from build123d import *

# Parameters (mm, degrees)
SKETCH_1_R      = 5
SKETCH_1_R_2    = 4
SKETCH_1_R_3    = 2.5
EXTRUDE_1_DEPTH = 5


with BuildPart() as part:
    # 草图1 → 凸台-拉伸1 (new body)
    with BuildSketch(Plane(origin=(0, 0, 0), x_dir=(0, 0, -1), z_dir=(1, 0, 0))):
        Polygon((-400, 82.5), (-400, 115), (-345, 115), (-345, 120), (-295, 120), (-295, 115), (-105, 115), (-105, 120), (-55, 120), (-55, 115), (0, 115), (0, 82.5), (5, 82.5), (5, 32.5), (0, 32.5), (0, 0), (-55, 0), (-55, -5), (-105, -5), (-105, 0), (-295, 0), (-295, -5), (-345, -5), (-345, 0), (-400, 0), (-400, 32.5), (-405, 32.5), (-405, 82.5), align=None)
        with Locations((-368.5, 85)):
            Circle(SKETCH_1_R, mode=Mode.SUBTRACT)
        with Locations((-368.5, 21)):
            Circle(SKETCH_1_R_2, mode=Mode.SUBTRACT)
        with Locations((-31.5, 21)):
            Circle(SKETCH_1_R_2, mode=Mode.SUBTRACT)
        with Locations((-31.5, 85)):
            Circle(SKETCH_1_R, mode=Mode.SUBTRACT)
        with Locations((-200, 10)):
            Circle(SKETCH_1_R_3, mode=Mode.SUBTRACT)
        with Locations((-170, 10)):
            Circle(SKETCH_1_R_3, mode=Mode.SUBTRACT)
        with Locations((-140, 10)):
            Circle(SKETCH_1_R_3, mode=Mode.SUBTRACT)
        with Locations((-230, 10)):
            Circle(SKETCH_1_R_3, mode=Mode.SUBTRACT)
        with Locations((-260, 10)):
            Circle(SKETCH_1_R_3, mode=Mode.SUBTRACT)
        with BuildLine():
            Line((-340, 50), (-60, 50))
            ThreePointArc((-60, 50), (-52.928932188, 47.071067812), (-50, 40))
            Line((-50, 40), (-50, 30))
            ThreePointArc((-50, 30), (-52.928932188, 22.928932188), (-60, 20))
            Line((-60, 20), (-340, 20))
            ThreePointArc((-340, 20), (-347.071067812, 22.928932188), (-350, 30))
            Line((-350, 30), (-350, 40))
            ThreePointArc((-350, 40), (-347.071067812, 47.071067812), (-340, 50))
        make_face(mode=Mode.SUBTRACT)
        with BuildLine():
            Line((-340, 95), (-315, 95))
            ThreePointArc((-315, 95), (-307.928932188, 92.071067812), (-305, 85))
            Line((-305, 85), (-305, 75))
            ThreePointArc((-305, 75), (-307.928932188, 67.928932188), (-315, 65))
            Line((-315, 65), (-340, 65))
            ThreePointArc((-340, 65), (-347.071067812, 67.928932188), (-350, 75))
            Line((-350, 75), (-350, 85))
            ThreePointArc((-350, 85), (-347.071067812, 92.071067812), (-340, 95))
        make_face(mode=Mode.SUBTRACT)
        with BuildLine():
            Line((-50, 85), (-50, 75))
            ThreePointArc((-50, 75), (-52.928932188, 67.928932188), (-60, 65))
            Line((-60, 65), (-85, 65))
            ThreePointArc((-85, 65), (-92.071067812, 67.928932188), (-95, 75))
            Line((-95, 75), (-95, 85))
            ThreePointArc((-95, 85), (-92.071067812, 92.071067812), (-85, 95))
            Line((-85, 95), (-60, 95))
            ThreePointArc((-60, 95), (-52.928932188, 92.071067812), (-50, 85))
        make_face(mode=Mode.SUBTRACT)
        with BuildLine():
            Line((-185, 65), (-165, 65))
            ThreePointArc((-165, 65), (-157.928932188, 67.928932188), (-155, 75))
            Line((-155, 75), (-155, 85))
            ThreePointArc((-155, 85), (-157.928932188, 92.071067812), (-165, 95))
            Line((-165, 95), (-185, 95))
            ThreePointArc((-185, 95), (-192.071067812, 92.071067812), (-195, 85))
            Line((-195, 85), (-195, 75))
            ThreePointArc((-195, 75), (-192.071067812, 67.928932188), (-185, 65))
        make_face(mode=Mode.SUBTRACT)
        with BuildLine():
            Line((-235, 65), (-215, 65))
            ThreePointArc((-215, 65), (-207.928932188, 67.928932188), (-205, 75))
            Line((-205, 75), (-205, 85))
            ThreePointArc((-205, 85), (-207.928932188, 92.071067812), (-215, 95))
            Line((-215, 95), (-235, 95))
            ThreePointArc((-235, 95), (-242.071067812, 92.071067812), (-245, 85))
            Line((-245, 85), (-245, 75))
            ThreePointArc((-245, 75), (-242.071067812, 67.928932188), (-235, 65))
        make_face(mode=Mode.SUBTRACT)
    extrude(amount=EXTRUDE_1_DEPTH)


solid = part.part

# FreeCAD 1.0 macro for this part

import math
import FreeCAD as App
import Part
import Sketcher
from FreeCAD import Vector

doc = App.newDocument("Part")
body = doc.addObject("PartDesign::Body", "Body")

# Sketch on YZ plane
sketch1 = body.newObject("Sketcher::SketchObject", "Sketch")
sketch1.AttachmentSupport = (doc.getObject("YZ_Plane"), [""])
sketch1.MapMode = "FlatFace"
sketch1.addGeometry([
    Part.LineSegment(Vector(115, 400, 0), Vector(82.5, 400, 0)),  # 0
    Part.LineSegment(Vector(82.5, 400, 0), Vector(82.5, 405, 0)),  # 1
    Part.LineSegment(Vector(82.5, 405, 0), Vector(32.5, 405, 0)),  # 2
    Part.LineSegment(Vector(32.5, 405, 0), Vector(32.5, 400, 0)),  # 3
    Part.LineSegment(Vector(32.5, 400, 0), Vector(0, 400, 0)),  # 4
    Part.LineSegment(Vector(0, 400, 0), Vector(0, 345, 0)),  # 5
    Part.LineSegment(Vector(0, 345, 0), Vector(-5, 345, 0)),  # 6
    Part.LineSegment(Vector(-5, 345, 0), Vector(-5, 295, 0)),  # 7
    Part.LineSegment(Vector(-5, 295, 0), Vector(0, 295, 0)),  # 8
    Part.LineSegment(Vector(0, 295, 0), Vector(0, 105, 0)),  # 9
    Part.LineSegment(Vector(0, 105, 0), Vector(-5, 105, 0)),  # 10
    Part.LineSegment(Vector(-5, 105, 0), Vector(-5, 55, 0)),  # 11
    Part.LineSegment(Vector(-5, 55, 0), Vector(0, 55, 0)),  # 12
    Part.LineSegment(Vector(0, 55, 0), Vector(0, 0, 0)),  # 13
    Part.LineSegment(Vector(0, 0, 0), Vector(32.5, 0, 0)),  # 14
    Part.LineSegment(Vector(32.5, 0, 0), Vector(32.5, -5, 0)),  # 15
    Part.LineSegment(Vector(32.5, -5, 0), Vector(82.5, -5, 0)),  # 16
    Part.LineSegment(Vector(82.5, -5, 0), Vector(82.5, 0, 0)),  # 17
    Part.LineSegment(Vector(82.5, 0, 0), Vector(115, 0, 0)),  # 18
    Part.LineSegment(Vector(115, 0, 0), Vector(115, 55, 0)),  # 19
    Part.LineSegment(Vector(115, 55, 0), Vector(120, 55, 0)),  # 20
    Part.LineSegment(Vector(120, 55, 0), Vector(120, 105, 0)),  # 21
    Part.LineSegment(Vector(120, 105, 0), Vector(115, 105, 0)),  # 22
    Part.LineSegment(Vector(115, 105, 0), Vector(115, 295, 0)),  # 23
    Part.LineSegment(Vector(115, 295, 0), Vector(120, 295, 0)),  # 24
    Part.LineSegment(Vector(120, 295, 0), Vector(120, 345, 0)),  # 25
    Part.LineSegment(Vector(120, 345, 0), Vector(115, 345, 0)),  # 26
    Part.LineSegment(Vector(115, 345, 0), Vector(115, 400, 0)),  # 27
    Part.Circle(Vector(21, 31.5, 0), Vector(0, 0, 1), 4),  # 28
    Part.Circle(Vector(10, 140, 0), Vector(0, 0, 1), 2.5),  # 29
    Part.Circle(Vector(10, 170, 0), Vector(0, 0, 1), 2.5),  # 30
    Part.Circle(Vector(10, 200, 0), Vector(0, 0, 1), 2.5),  # 31
    Part.LineSegment(Vector(50, 340, 0), Vector(50, 60, 0)),  # 32
    Part.ArcOfCircle(Part.Circle(Vector(40, 60, 0), Vector(0, 0, 1), 10), math.radians(-90), math.radians(0)),  # 33
    Part.LineSegment(Vector(40, 50, 0), Vector(30, 50, 0)),  # 34
    Part.ArcOfCircle(Part.Circle(Vector(30, 60, 0), Vector(0, 0, 1), 10), math.radians(180), math.radians(270)),  # 35
    Part.LineSegment(Vector(20, 60, 0), Vector(20, 340, 0)),  # 36
    Part.ArcOfCircle(Part.Circle(Vector(30, 340, 0), Vector(0, 0, 1), 10), math.radians(90), math.radians(180)),  # 37
    Part.LineSegment(Vector(30, 350, 0), Vector(40, 350, 0)),  # 38
    Part.ArcOfCircle(Part.Circle(Vector(40, 340, 0), Vector(0, 0, 1), 10), math.radians(0), math.radians(90)),  # 39
    Part.Circle(Vector(10, 230, 0), Vector(0, 0, 1), 2.5),  # 40
    Part.Circle(Vector(10, 260, 0), Vector(0, 0, 1), 2.5),  # 41
    Part.Circle(Vector(21, 368.5, 0), Vector(0, 0, 1), 4),  # 42
    Part.LineSegment(Vector(85, 50, 0), Vector(75, 50, 0)),  # 43
    Part.ArcOfCircle(Part.Circle(Vector(75, 60, 0), Vector(0, 0, 1), 10), math.radians(180), math.radians(270)),  # 44
    Part.LineSegment(Vector(65, 60, 0), Vector(65, 85, 0)),  # 45
    Part.ArcOfCircle(Part.Circle(Vector(75, 85, 0), Vector(0, 0, 1), 10), math.radians(90), math.radians(180)),  # 46
    Part.LineSegment(Vector(75, 95, 0), Vector(85, 95, 0)),  # 47
    Part.ArcOfCircle(Part.Circle(Vector(85, 85, 0), Vector(0, 0, 1), 10), math.radians(0), math.radians(90)),  # 48
    Part.LineSegment(Vector(95, 85, 0), Vector(95, 60, 0)),  # 49
    Part.ArcOfCircle(Part.Circle(Vector(85, 60, 0), Vector(0, 0, 1), 10), math.radians(-90), math.radians(0)),  # 50
    Part.Circle(Vector(85, 31.5, 0), Vector(0, 0, 1), 5),  # 51
    Part.ArcOfCircle(Part.Circle(Vector(75, 185, 0), Vector(0, 0, 1), 10), math.radians(90), math.radians(180)),  # 52
    Part.LineSegment(Vector(75, 195, 0), Vector(85, 195, 0)),  # 53
    Part.ArcOfCircle(Part.Circle(Vector(85, 185, 0), Vector(0, 0, 1), 10), math.radians(0), math.radians(90)),  # 54
    Part.LineSegment(Vector(95, 185, 0), Vector(95, 165, 0)),  # 55
    Part.ArcOfCircle(Part.Circle(Vector(85, 165, 0), Vector(0, 0, 1), 10), math.radians(-90), math.radians(0)),  # 56
    Part.LineSegment(Vector(85, 155, 0), Vector(75, 155, 0)),  # 57
    Part.ArcOfCircle(Part.Circle(Vector(75, 165, 0), Vector(0, 0, 1), 10), math.radians(180), math.radians(270)),  # 58
    Part.LineSegment(Vector(65, 165, 0), Vector(65, 185, 0)),  # 59
    Part.ArcOfCircle(Part.Circle(Vector(75, 235, 0), Vector(0, 0, 1), 10), math.radians(90), math.radians(180)),  # 60
    Part.LineSegment(Vector(75, 245, 0), Vector(85, 245, 0)),  # 61
    Part.ArcOfCircle(Part.Circle(Vector(85, 235, 0), Vector(0, 0, 1), 10), math.radians(0), math.radians(90)),  # 62
    Part.LineSegment(Vector(95, 235, 0), Vector(95, 215, 0)),  # 63
    Part.ArcOfCircle(Part.Circle(Vector(85, 215, 0), Vector(0, 0, 1), 10), math.radians(-90), math.radians(0)),  # 64
    Part.LineSegment(Vector(85, 205, 0), Vector(75, 205, 0)),  # 65
    Part.ArcOfCircle(Part.Circle(Vector(75, 215, 0), Vector(0, 0, 1), 10), math.radians(180), math.radians(270)),  # 66
    Part.LineSegment(Vector(65, 215, 0), Vector(65, 235, 0)),  # 67
    Part.LineSegment(Vector(95, 340, 0), Vector(95, 315, 0)),  # 68
    Part.ArcOfCircle(Part.Circle(Vector(85, 315, 0), Vector(0, 0, 1), 10), math.radians(-90), math.radians(0)),  # 69
    Part.LineSegment(Vector(85, 305, 0), Vector(75, 305, 0)),  # 70
    Part.ArcOfCircle(Part.Circle(Vector(75, 315, 0), Vector(0, 0, 1), 10), math.radians(180), math.radians(270)),  # 71
    Part.LineSegment(Vector(65, 315, 0), Vector(65, 340, 0)),  # 72
    Part.ArcOfCircle(Part.Circle(Vector(75, 340, 0), Vector(0, 0, 1), 10), math.radians(90), math.radians(180)),  # 73
    Part.LineSegment(Vector(75, 350, 0), Vector(85, 350, 0)),  # 74
    Part.ArcOfCircle(Part.Circle(Vector(85, 340, 0), Vector(0, 0, 1), 10), math.radians(0), math.radians(90)),  # 75
    Part.Circle(Vector(85, 368.5, 0), Vector(0, 0, 1), 5),  # 76
], False)
sketch1.addConstraint([
    Sketcher.Constraint("Coincident", 0, 2, 1, 1),
    Sketcher.Constraint("Coincident", 1, 2, 2, 1),
    Sketcher.Constraint("Coincident", 2, 2, 3, 1),
    Sketcher.Constraint("Coincident", 3, 2, 4, 1),
    Sketcher.Constraint("Coincident", 4, 2, 5, 1),
    Sketcher.Constraint("Coincident", 5, 2, 6, 1),
    Sketcher.Constraint("Coincident", 6, 2, 7, 1),
    Sketcher.Constraint("Coincident", 7, 2, 8, 1),
    Sketcher.Constraint("Coincident", 8, 2, 9, 1),
    Sketcher.Constraint("Coincident", 9, 2, 10, 1),
    Sketcher.Constraint("Coincident", 10, 2, 11, 1),
    Sketcher.Constraint("Coincident", 11, 2, 12, 1),
    Sketcher.Constraint("Coincident", 12, 2, 13, 1),
    Sketcher.Constraint("Coincident", 13, 2, 14, 1),
    Sketcher.Constraint("Coincident", 14, 2, 15, 1),
    Sketcher.Constraint("Coincident", 15, 2, 16, 1),
    Sketcher.Constraint("Coincident", 16, 2, 17, 1),
    Sketcher.Constraint("Coincident", 17, 2, 18, 1),
    Sketcher.Constraint("Coincident", 18, 2, 19, 1),
    Sketcher.Constraint("Coincident", 19, 2, 20, 1),
    Sketcher.Constraint("Coincident", 20, 2, 21, 1),
    Sketcher.Constraint("Coincident", 21, 2, 22, 1),
    Sketcher.Constraint("Coincident", 22, 2, 23, 1),
    Sketcher.Constraint("Coincident", 23, 2, 24, 1),
    Sketcher.Constraint("Coincident", 24, 2, 25, 1),
    Sketcher.Constraint("Coincident", 25, 2, 26, 1),
    Sketcher.Constraint("Coincident", 26, 2, 27, 1),
    Sketcher.Constraint("Coincident", 27, 2, 0, 1),
    Sketcher.Constraint("Tangent", 32, 2, 33, 2),
    Sketcher.Constraint("Tangent", 33, 1, 34, 1),
    Sketcher.Constraint("Tangent", 34, 2, 35, 2),
    Sketcher.Constraint("Tangent", 35, 1, 36, 1),
    Sketcher.Constraint("Tangent", 36, 2, 37, 2),
    Sketcher.Constraint("Tangent", 37, 1, 38, 1),
    Sketcher.Constraint("Tangent", 38, 2, 39, 2),
    Sketcher.Constraint("Tangent", 39, 1, 32, 1),
    Sketcher.Constraint("Tangent", 43, 2, 44, 2),
    Sketcher.Constraint("Tangent", 44, 1, 45, 1),
    Sketcher.Constraint("Tangent", 45, 2, 46, 2),
    Sketcher.Constraint("Tangent", 46, 1, 47, 1),
    Sketcher.Constraint("Tangent", 47, 2, 48, 2),
    Sketcher.Constraint("Tangent", 48, 1, 49, 1),
    Sketcher.Constraint("Tangent", 49, 2, 50, 2),
    Sketcher.Constraint("Tangent", 50, 1, 43, 1),
    Sketcher.Constraint("Tangent", 52, 1, 53, 1),
    Sketcher.Constraint("Tangent", 53, 2, 54, 2),
    Sketcher.Constraint("Tangent", 54, 1, 55, 1),
    Sketcher.Constraint("Tangent", 55, 2, 56, 2),
    Sketcher.Constraint("Tangent", 56, 1, 57, 1),
    Sketcher.Constraint("Tangent", 57, 2, 58, 2),
    Sketcher.Constraint("Tangent", 58, 1, 59, 1),
    Sketcher.Constraint("Tangent", 59, 2, 52, 2),
    Sketcher.Constraint("Tangent", 60, 1, 61, 1),
    Sketcher.Constraint("Tangent", 61, 2, 62, 2),
    Sketcher.Constraint("Tangent", 62, 1, 63, 1),
    Sketcher.Constraint("Tangent", 63, 2, 64, 2),
    Sketcher.Constraint("Tangent", 64, 1, 65, 1),
    Sketcher.Constraint("Tangent", 65, 2, 66, 2),
    Sketcher.Constraint("Tangent", 66, 1, 67, 1),
    Sketcher.Constraint("Tangent", 67, 2, 60, 2),
    Sketcher.Constraint("Tangent", 68, 2, 69, 2),
    Sketcher.Constraint("Tangent", 69, 1, 70, 1),
    Sketcher.Constraint("Tangent", 70, 2, 71, 2),
    Sketcher.Constraint("Tangent", 71, 1, 72, 1),
    Sketcher.Constraint("Tangent", 72, 2, 73, 2),
    Sketcher.Constraint("Tangent", 73, 1, 74, 1),
    Sketcher.Constraint("Tangent", 74, 2, 75, 2),
    Sketcher.Constraint("Tangent", 75, 1, 68, 1),
    Sketcher.Constraint("Horizontal", 0),
    Sketcher.Constraint("Vertical", 1),
    Sketcher.Constraint("Horizontal", 2),
    Sketcher.Constraint("Vertical", 3),
    Sketcher.Constraint("Horizontal", 4),
    Sketcher.Constraint("Vertical", 5),
    Sketcher.Constraint("Horizontal", 6),
    Sketcher.Constraint("Vertical", 7),
    Sketcher.Constraint("Horizontal", 8),
    Sketcher.Constraint("Vertical", 9),
    Sketcher.Constraint("Horizontal", 10),
    Sketcher.Constraint("Vertical", 11),
    Sketcher.Constraint("Horizontal", 12),
    Sketcher.Constraint("Vertical", 13),
    Sketcher.Constraint("Horizontal", 14),
    Sketcher.Constraint("Vertical", 15),
    Sketcher.Constraint("Horizontal", 16),
    Sketcher.Constraint("Vertical", 17),
    Sketcher.Constraint("Horizontal", 18),
    Sketcher.Constraint("Vertical", 19),
    Sketcher.Constraint("Horizontal", 20),
    Sketcher.Constraint("Vertical", 21),
    Sketcher.Constraint("Horizontal", 22),
    Sketcher.Constraint("Vertical", 23),
    Sketcher.Constraint("Horizontal", 24),
    Sketcher.Constraint("Vertical", 25),
    Sketcher.Constraint("Horizontal", 26),
    Sketcher.Constraint("Vertical", 27),
    Sketcher.Constraint("Vertical", 32),
    Sketcher.Constraint("Horizontal", 34),
    Sketcher.Constraint("Vertical", 36),
    Sketcher.Constraint("Horizontal", 38),
    Sketcher.Constraint("Horizontal", 43),
    Sketcher.Constraint("Vertical", 45),
    Sketcher.Constraint("Horizontal", 47),
    Sketcher.Constraint("Vertical", 49),
    Sketcher.Constraint("Horizontal", 53),
    Sketcher.Constraint("Vertical", 55),
    Sketcher.Constraint("Horizontal", 57),
    Sketcher.Constraint("Vertical", 59),
    Sketcher.Constraint("Horizontal", 61),
    Sketcher.Constraint("Vertical", 63),
    Sketcher.Constraint("Horizontal", 65),
    Sketcher.Constraint("Vertical", 67),
    Sketcher.Constraint("Vertical", 68),
    Sketcher.Constraint("Horizontal", 70),
    Sketcher.Constraint("Vertical", 72),
    Sketcher.Constraint("Horizontal", 74),
    Sketcher.Constraint("Coincident", 13, 2, -1, 1),
    Sketcher.Constraint("Equal", 29, 30),
    Sketcher.Constraint("Equal", 30, 31),
    Sketcher.Constraint("Equal", 33, 35),
    Sketcher.Constraint("Equal", 35, 37),
    Sketcher.Constraint("Equal", 37, 39),
    Sketcher.Constraint("Equal", 31, 40),
    Sketcher.Constraint("Equal", 40, 41),
    Sketcher.Constraint("Equal", 28, 42),
    Sketcher.Constraint("Equal", 39, 44),
    Sketcher.Constraint("Equal", 44, 46),
    Sketcher.Constraint("Equal", 46, 48),
    Sketcher.Constraint("Equal", 48, 50),
    Sketcher.Constraint("Equal", 50, 52),
    Sketcher.Constraint("Equal", 52, 54),
    Sketcher.Constraint("Equal", 54, 56),
    Sketcher.Constraint("Equal", 56, 58),
    Sketcher.Constraint("Equal", 58, 60),
    Sketcher.Constraint("Equal", 60, 62),
    Sketcher.Constraint("Equal", 62, 64),
    Sketcher.Constraint("Equal", 64, 66),
    Sketcher.Constraint("Equal", 66, 69),
    Sketcher.Constraint("Equal", 69, 71),
    Sketcher.Constraint("Equal", 71, 73),
    Sketcher.Constraint("Equal", 73, 75),
    Sketcher.Constraint("Equal", 51, 76),
    Sketcher.Constraint("PointOnObject", 4, 2, -2),
    Sketcher.Constraint("PointOnObject", 8, 2, -2),
    Sketcher.Constraint("PointOnObject", 17, 2, -1),
    Sketcher.Constraint("Horizontal", 35, 3, 44, 3),
    Sketcher.Constraint("Horizontal", 28, 3, 51, 3),
    Sketcher.Constraint("Horizontal", 39, 3, 73, 3),
    Sketcher.Constraint("Horizontal", 42, 3, 76, 3),
    Sketcher.Constraint("Horizontal", 0, 2, 3, 2),
    Sketcher.Constraint("Horizontal", 12, 2, 19, 2),
    Sketcher.Constraint("Horizontal", 10, 2, 21, 2),
    Sketcher.Constraint("Horizontal", 8, 2, 23, 2),
    Sketcher.Constraint("Horizontal", 6, 2, 25, 2),
    Sketcher.Constraint("Vertical", 29, 3, 30, 3),
    Sketcher.Constraint("Vertical", 30, 3, 31, 3),
    Sketcher.Constraint("Vertical", 31, 3, 40, 3),
    Sketcher.Constraint("Vertical", 40, 3, 41, 3),
    Sketcher.Constraint("Vertical", 28, 3, 42, 3),
    Sketcher.Constraint("Vertical", 50, 3, 51, 3),
    Sketcher.Constraint("Vertical", 46, 3, 52, 3),
    Sketcher.Constraint("Vertical", 51, 3, 54, 3),
    Sketcher.Constraint("Vertical", 58, 3, 60, 3),
    Sketcher.Constraint("Vertical", 56, 3, 62, 3),
    Sketcher.Constraint("Vertical", 64, 3, 69, 3),
    Sketcher.Constraint("Vertical", 66, 3, 71, 3),
    Sketcher.Constraint("Vertical", 75, 3, 76, 3),
    Sketcher.Constraint("Vertical", 7, 2, 10, 2),
    Sketcher.Constraint("Vertical", 3, 2, 14, 2),
    Sketcher.Constraint("Vertical", 1, 2, 16, 2),
    Sketcher.Constraint("Vertical", 19, 2, 22, 2),
    Sketcher.Constraint("Vertical", 21, 2, 24, 2),
    Sketcher.Constraint("Vertical", 23, 2, 26, 2),
    Sketcher.Constraint("Equal", 0, 4),
    Sketcher.Constraint("Equal", 12, 20),
    Sketcher.Constraint("Equal", 38, 43),
    Sketcher.Constraint("Equal", 26, 1),
    Sketcher.Constraint("Equal", 16, 7),
    Sketcher.Constraint("Equal", 7, 11),
    Sketcher.Constraint("Equal", 5, 13),
    Sketcher.Constraint("Equal", 3, 15),
    Sketcher.Constraint("Equal", 59, 63),
    Sketcher.Constraint("Equal", 49, 68),
    Sketcher.Constraint("Diameter", 28, 8.0),
    Sketcher.Constraint("Diameter", 29, 5.0),
    Sketcher.Constraint("Diameter", 51, 10.0),
    Sketcher.Constraint("Radius", 33, 10.0),
    Sketcher.Constraint("DistanceX", 2, 2, 2, 1, 50.0),
    Sketcher.Constraint("DistanceX", 6, 2, 6, 1, 5.0),
    Sketcher.Constraint("DistanceX", 34, 2, 34, 1, 10.0),
    Sketcher.Constraint("DistanceY", 5, 2, 5, 1, 55.0),
    Sketcher.Constraint("DistanceY", 9, 2, 9, 1, 190.0),
    Sketcher.Constraint("DistanceY", 32, 2, 32, 1, 280.0),
    Sketcher.Constraint("DistanceY", 45, 1, 45, 2, 25.0),
    Sketcher.Constraint("DistanceY", 55, 2, 55, 1, 20.0),
    Sketcher.Constraint("DistanceX", 0, 2, 0, 1, 32.5),
    Sketcher.Constraint("DistanceX", -1, 1, 28, 3, 21.0),
    Sketcher.Constraint("DistanceX", -1, 1, 29, 3, 10.0),
    Sketcher.Constraint("DistanceY", -1, 1, 29, 3, 140.0),
    Sketcher.Constraint("DistanceY", -1, 1, 30, 3, 170.0),
    Sketcher.Constraint("DistanceY", -1, 1, 31, 3, 200.0),
    Sketcher.Constraint("DistanceX", -1, 1, 33, 3, 40.0),
    Sketcher.Constraint("DistanceY", -1, 1, 33, 3, 60.0),
    Sketcher.Constraint("DistanceY", -1, 1, 40, 3, 230.0),
    Sketcher.Constraint("DistanceY", -1, 1, 41, 3, 260.0),
    Sketcher.Constraint("DistanceX", -1, 1, 44, 3, 75.0),
    Sketcher.Constraint("DistanceY", -1, 1, 52, 3, 185.0),
    Sketcher.Constraint("DistanceY", -1, 1, 60, 3, 235.0),
    Sketcher.Constraint("DistanceY", -1, 1, 28, 3, 31.5),
    Sketcher.Constraint("DistanceY", -1, 1, 42, 3, 368.5),
])
pad1 = body.newObject("PartDesign::Pad", "Pad")
pad1.Profile = sketch1
pad1.Length = 5

doc.recompute()
